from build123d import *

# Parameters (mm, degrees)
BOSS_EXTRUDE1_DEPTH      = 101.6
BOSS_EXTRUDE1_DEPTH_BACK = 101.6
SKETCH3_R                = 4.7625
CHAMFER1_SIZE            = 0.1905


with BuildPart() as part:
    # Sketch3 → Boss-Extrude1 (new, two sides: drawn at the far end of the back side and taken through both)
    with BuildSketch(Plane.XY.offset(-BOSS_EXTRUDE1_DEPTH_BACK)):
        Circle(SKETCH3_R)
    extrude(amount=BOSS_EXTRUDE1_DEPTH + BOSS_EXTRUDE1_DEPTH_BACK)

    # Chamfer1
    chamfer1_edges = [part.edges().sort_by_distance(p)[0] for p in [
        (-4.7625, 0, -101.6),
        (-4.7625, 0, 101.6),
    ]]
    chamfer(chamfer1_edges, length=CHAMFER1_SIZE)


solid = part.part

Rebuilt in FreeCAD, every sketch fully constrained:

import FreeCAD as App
import Part
import Sketcher

V = App.Vector
Q = App.Units.Quantity


def edges_at(feature, points):
    """Names of the edges that pass closest to the given points."""
    edges = feature.Shape.Edges
    near = lambda p: min(range(len(edges)), key=lambda i: edges[i].distToShape(Part.Vertex(*p))[0])
    return sorted({f"Edge{near(p) + 1}" for p in points})

doc = App.newDocument("Part")
params = doc.addObject("Spreadsheet::Sheet", "Params")
for row, (alias, value) in enumerate([
    ("sketch1_diameter", "0.375 in"),
    ("pad1_length", "4 in"),
    ("pad1_length2", "4 in"),
    ("chamfer_size", "0.0075 in"),
], start=1):
    params.set(f"A{row}", alias)
    params.set(f"B{row}", "=" + value)
    params.setAlias(f"B{row}", alias)

body = doc.addObject("PartDesign::Body", "Body")

# Sketch on XY plane
sketch1 = body.newObject("Sketcher::SketchObject", "Sketch")
sketch1.AttachmentSupport = (doc.getObject("XY_Plane"), [""])
sketch1.MapMode = "FlatFace"
sketch1.addGeometry(Part.Circle(V(0, 0, 0), V(0, 0, 1), 4.8), False)
sketch1.addConstraint(Sketcher.Constraint("Coincident", 0, 3, -1, 1))
sketch1.addConstraint(Sketcher.Constraint("Diameter", 0, Q("0.375 in")))
sketch1.setExpression("Constraints[1]", "Params.sketch1_diameter")
pad1 = body.newObject("PartDesign::Pad", "Pad")
pad1.Profile = sketch1
pad1.Type = "TwoLengths"
pad1.setExpression("Length", "Params.pad1_length")
pad1.setExpression("Length2", "Params.pad1_length2")
doc.recompute()

chamfer = body.newObject("PartDesign::Chamfer", "Chamfer")
chamfer.Base = (pad1, edges_at(pad1, [(-4.763, 0, -101.6), (-4.763, 0, 101.6)]))
chamfer.setExpression("Size", "Params.chamfer_size")

doc.recompute()
